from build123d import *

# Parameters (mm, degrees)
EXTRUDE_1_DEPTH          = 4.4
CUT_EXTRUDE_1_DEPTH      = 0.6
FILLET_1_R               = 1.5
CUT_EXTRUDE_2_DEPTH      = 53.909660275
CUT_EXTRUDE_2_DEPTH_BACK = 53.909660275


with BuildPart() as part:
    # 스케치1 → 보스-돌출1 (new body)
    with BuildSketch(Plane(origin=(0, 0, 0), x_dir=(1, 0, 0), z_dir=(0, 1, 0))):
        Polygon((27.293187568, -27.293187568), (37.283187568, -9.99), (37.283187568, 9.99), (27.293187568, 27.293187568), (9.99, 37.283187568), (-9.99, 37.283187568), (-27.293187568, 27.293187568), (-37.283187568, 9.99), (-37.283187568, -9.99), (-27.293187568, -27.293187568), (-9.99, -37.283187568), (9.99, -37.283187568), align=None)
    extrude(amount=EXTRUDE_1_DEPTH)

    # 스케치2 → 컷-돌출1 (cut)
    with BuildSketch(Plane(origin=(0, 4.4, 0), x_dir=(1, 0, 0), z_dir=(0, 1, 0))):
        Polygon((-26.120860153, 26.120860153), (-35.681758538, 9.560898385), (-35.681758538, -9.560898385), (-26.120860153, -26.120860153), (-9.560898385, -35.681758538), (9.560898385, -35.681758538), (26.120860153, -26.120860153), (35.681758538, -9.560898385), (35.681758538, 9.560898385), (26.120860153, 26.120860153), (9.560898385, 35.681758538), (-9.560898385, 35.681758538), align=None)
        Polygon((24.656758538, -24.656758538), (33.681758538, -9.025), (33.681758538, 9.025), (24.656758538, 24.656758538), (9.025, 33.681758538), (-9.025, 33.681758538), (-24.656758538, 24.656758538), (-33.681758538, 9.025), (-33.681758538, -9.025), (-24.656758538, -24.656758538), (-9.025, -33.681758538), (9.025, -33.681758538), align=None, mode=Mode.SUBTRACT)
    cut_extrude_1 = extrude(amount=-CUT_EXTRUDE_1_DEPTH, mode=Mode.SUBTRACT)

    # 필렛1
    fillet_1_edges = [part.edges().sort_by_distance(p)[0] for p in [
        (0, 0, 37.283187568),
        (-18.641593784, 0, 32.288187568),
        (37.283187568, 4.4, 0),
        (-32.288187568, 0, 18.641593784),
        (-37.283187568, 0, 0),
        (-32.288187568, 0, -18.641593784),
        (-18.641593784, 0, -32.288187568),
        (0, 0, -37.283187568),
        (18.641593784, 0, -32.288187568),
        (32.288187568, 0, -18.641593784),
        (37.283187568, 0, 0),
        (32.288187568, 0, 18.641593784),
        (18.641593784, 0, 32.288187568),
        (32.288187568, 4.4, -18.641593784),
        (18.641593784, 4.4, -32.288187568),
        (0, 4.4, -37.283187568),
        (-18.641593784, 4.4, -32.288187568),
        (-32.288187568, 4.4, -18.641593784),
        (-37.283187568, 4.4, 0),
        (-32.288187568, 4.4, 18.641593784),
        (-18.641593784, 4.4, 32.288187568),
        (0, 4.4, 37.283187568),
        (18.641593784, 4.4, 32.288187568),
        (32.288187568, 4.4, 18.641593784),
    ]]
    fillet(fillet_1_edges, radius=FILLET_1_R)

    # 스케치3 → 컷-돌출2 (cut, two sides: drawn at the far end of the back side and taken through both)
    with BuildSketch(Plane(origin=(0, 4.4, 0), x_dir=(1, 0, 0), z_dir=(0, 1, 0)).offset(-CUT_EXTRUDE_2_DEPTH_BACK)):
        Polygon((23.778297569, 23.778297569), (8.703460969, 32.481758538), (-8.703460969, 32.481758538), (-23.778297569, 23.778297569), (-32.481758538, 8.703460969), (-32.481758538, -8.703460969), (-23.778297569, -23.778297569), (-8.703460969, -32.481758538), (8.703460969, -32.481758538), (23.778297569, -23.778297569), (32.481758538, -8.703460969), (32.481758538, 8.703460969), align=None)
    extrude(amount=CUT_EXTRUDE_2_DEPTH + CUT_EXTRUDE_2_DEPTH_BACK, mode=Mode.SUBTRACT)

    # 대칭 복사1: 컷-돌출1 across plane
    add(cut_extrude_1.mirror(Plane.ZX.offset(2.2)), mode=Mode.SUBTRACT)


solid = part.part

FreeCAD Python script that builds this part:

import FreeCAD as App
import Part
import Sketcher
from FreeCAD import Vector
Q = App.Units.Quantity


def edges_at(feature, points):
    """Names of the edges that pass closest to the given points."""
    edges = feature.Shape.Edges
    near = lambda p: min(range(len(edges)), key=lambda i: edges[i].distToShape(Part.Vertex(*p))[0])
    return sorted({f"Edge{near(p) + 1}" for p in points})

doc = App.newDocument("Part")
body = doc.addObject("PartDesign::Body", "Body")

# Sketch on XZ plane
sketch1 = body.newObject("Sketcher::SketchObject", "Sketch")
sketch1.AttachmentSupport = (doc.getObject("XZ_Plane"), [""])
sketch1.MapMode = "FlatFace"
sketch1.addGeometry([
    Part.LineSegment(Vector(27, 27, 0), Vector(37, 10, 0)),  # 0
    Part.LineSegment(Vector(37, 10, 0), Vector(37, -10, 0)),  # 1
    Part.LineSegment(Vector(37, -10, 0), Vector(27, -27, 0)),  # 2
    Part.LineSegment(Vector(27, -27, 0), Vector(10, -37, 0)),  # 3
    Part.LineSegment(Vector(10, -37, 0), Vector(-10, -37, 0)),  # 4
    Part.LineSegment(Vector(-10, -37, 0), Vector(-27, -27, 0)),  # 5
    Part.LineSegment(Vector(-27, -27, 0), Vector(-37, -10, 0)),  # 6
    Part.LineSegment(Vector(-37, -10, 0), Vector(-37, 10, 0)),  # 7
    Part.LineSegment(Vector(-37, 10, 0), Vector(-27, 27, 0)),  # 8
    Part.LineSegment(Vector(-27, 27, 0), Vector(-10, 37, 0)),  # 9
    Part.LineSegment(Vector(-10, 37, 0), Vector(10, 37, 0)),  # 10
    Part.LineSegment(Vector(10, 37, 0), Vector(27, 27, 0)),  # 11
], False)
sketch1.addConstraint([
    Sketcher.Constraint("Coincident", 0, 2, 1, 1),
    Sketcher.Constraint("Coincident", 1, 2, 2, 1),
    Sketcher.Constraint("Coincident", 2, 2, 3, 1),
    Sketcher.Constraint("Coincident", 3, 2, 4, 1),
    Sketcher.Constraint("Coincident", 4, 2, 5, 1),
    Sketcher.Constraint("Coincident", 5, 2, 6, 1),
    Sketcher.Constraint("Coincident", 6, 2, 7, 1),
    Sketcher.Constraint("Coincident", 7, 2, 8, 1),
    Sketcher.Constraint("Coincident", 8, 2, 9, 1),
    Sketcher.Constraint("Coincident", 9, 2, 10, 1),
    Sketcher.Constraint("Coincident", 10, 2, 11, 1),
    Sketcher.Constraint("Coincident", 11, 2, 0, 1),
    Sketcher.Constraint("Vertical", 1),
    Sketcher.Constraint("Horizontal", 4),
    Sketcher.Constraint("Vertical", 7),
    Sketcher.Constraint("Horizontal", 10),
    Sketcher.Constraint("Symmetric", 0, 2, 6, 2, -1, 1),
    Sketcher.Constraint("Symmetric", 2, 2, 8, 2, -1, 1),
    Sketcher.Constraint("Symmetric", 3, 2, 9, 2, -1, 1),
    Sketcher.Constraint("Symmetric", 5, 2, 11, 2, -1, 1),
    Sketcher.Constraint("Symmetric", 2, 2, 5, 2, -2),
    Sketcher.Constraint("Perpendicular", 0, 3),
    Sketcher.Constraint("Perpendicular", 2, 5),
    Sketcher.Constraint("Perpendicular", 5, 8),
    Sketcher.Constraint("Perpendicular", 8, 11),
    Sketcher.Constraint("Horizontal", 1, 2, 6, 2),
    Sketcher.Constraint("Equal", 10, 1),
    Sketcher.Constraint("Equal", 2, 3),
    Sketcher.Constraint("Angle", 0, Q("-60 deg")),
    Sketcher.Constraint("DistanceX", 4, 2, 4, 1, Q("19.98 mm")),
    Sketcher.Constraint("Distance", 0, Q("19.98 mm")),
])
pad1 = body.newObject("PartDesign::Pad", "Pad")
pad1.Profile = sketch1
pad1.Length = 4.4
pad1.Reversed = True

# Sketch on XZ plane
sketch2 = body.newObject("Sketcher::SketchObject", "Sketch001")
sketch2.AttachmentSupport = (doc.getObject("XZ_Plane"), [""])
sketch2.MapMode = "FlatFace"
sketch2.AttachmentOffset = App.Placement(Vector(0, 0, -4.4), App.Rotation())
sketch2.addGeometry([
    Part.LineSegment(Vector(-26, -26, 0), Vector(-36, -10, 0)),  # 0
    Part.LineSegment(Vector(-36, -10, 0), Vector(-36, 10, 0)),  # 1
    Part.LineSegment(Vector(-36, 10, 0), Vector(-26, 26, 0)),  # 2
    Part.LineSegment(Vector(-26, 26, 0), Vector(-10, 36, 0)),  # 3
    Part.LineSegment(Vector(-10, 36, 0), Vector(10, 36, 0)),  # 4
    Part.LineSegment(Vector(10, 36, 0), Vector(26, 26, 0)),  # 5
    Part.LineSegment(Vector(26, 26, 0), Vector(36, 10, 0)),  # 6
    Part.LineSegment(Vector(36, 10, 0), Vector(36, -10, 0)),  # 7
    Part.LineSegment(Vector(36, -10, 0), Vector(26, -26, 0)),  # 8
    Part.LineSegment(Vector(26, -26, 0), Vector(10, -36, 0)),  # 9
    Part.LineSegment(Vector(10, -36, 0), Vector(-10, -36, 0)),  # 10
    Part.LineSegment(Vector(-10, -36, 0), Vector(-26, -26, 0)),  # 11
    Part.LineSegment(Vector(34, 9, 0), Vector(25, 25, 0)),  # 12
    Part.LineSegment(Vector(25, 25, 0), Vector(9, 34, 0)),  # 13
    Part.LineSegment(Vector(9, 34, 0), Vector(-9, 34, 0)),  # 14
    Part.LineSegment(Vector(-9, 34, 0), Vector(-25, 25, 0)),  # 15
    Part.LineSegment(Vector(-25, 25, 0), Vector(-34, 9, 0)),  # 16
    Part.LineSegment(Vector(-34, 9, 0), Vector(-34, -9, 0)),  # 17
    Part.LineSegment(Vector(-34, -9, 0), Vector(-25, -25, 0)),  # 18
    Part.LineSegment(Vector(-25, -25, 0), Vector(-9, -34, 0)),  # 19
    Part.LineSegment(Vector(-9, -34, 0), Vector(9, -34, 0)),  # 20
    Part.LineSegment(Vector(9, -34, 0), Vector(25, -25, 0)),  # 21
    Part.LineSegment(Vector(25, -25, 0), Vector(34, -9, 0)),  # 22
    Part.LineSegment(Vector(34, -9, 0), Vector(34, 9, 0)),  # 23
], False)
sketch2.addConstraint([
    Sketcher.Constraint("Coincident", 0, 2, 1, 1),
    Sketcher.Constraint("Coincident", 1, 2, 2, 1),
    Sketcher.Constraint("Coincident", 2, 2, 3, 1),
    Sketcher.Constraint("Coincident", 3, 2, 4, 1),
    Sketcher.Constraint("Coincident", 4, 2, 5, 1),
    Sketcher.Constraint("Coincident", 5, 2, 6, 1),
    Sketcher.Constraint("Coincident", 6, 2, 7, 1),
    Sketcher.Constraint("Coincident", 7, 2, 8, 1),
    Sketcher.Constraint("Coincident", 8, 2, 9, 1),
    Sketcher.Constraint("Coincident", 9, 2, 10, 1),
    Sketcher.Constraint("Coincident", 10, 2, 11, 1),
    Sketcher.Constraint("Coincident", 11, 2, 0, 1),
    Sketcher.Constraint("Coincident", 12, 2, 13, 1),
    Sketcher.Constraint("Coincident", 13, 2, 14, 1),
    Sketcher.Constraint("Coincident", 14, 2, 15, 1),
    Sketcher.Constraint("Coincident", 15, 2, 16, 1),
    Sketcher.Constraint("Coincident", 16, 2, 17, 1),
    Sketcher.Constraint("Coincident", 17, 2, 18, 1),
    Sketcher.Constraint("Coincident", 18, 2, 19, 1),
    Sketcher.Constraint("Coincident", 19, 2, 20, 1),
    Sketcher.Constraint("Coincident", 20, 2, 21, 1),
    Sketcher.Constraint("Coincident", 21, 2, 22, 1),
    Sketcher.Constraint("Coincident", 22, 2, 23, 1),
    Sketcher.Constraint("Coincident", 23, 2, 12, 1),
    Sketcher.Constraint("Vertical", 1),
    Sketcher.Constraint("Horizontal", 4),
    Sketcher.Constraint("Vertical", 7),
    Sketcher.Constraint("Horizontal", 10),
    Sketcher.Constraint("Horizontal", 14),
    Sketcher.Constraint("Vertical", 17),
    Sketcher.Constraint("Horizontal", 20),
    Sketcher.Constraint("Vertical", 23),
    Sketcher.Constraint("Symmetric", 0, 2, 6, 2, -1, 1),
    Sketcher.Constraint("Symmetric", 2, 2, 8, 2, -1, 1),
    Sketcher.Constraint("Symmetric", 3, 2, 9, 2, -1, 1),
    Sketcher.Constraint("Symmetric", 5, 2, 11, 2, -1, 1),
    Sketcher.Constraint("Symmetric", 12, 2, 18, 2, -1, 1),
    Sketcher.Constraint("Symmetric", 13, 2, 19, 2, -1, 1),
    Sketcher.Constraint("Symmetric", 15, 2, 21, 2, -1, 1),
    Sketcher.Constraint("Symmetric", 16, 2, 22, 2, -1, 1),
    Sketcher.Constraint("Symmetric", 2, 2, 5, 2, -2),
    Sketcher.Constraint("Symmetric", 12, 2, 15, 2, -2),
    Sketcher.Constraint("Perpendicular", 0, 3),
    Sketcher.Constraint("Perpendicular", 2, 5),
    Sketcher.Constraint("Perpendicular", 5, 8),
    Sketcher.Constraint("Perpendicular", 8, 11),
    Sketcher.Constraint("Perpendicular", 9, 12),
    Sketcher.Constraint("Parallel", 11, 13),
    Sketcher.Constraint("Perpendicular", 12, 15),
    Sketcher.Constraint("Perpendicular", 13, 16),
    Sketcher.Constraint("Perpendicular", 15, 18),
    Sketcher.Constraint("Perpendicular", 18, 21),
    Sketcher.Constraint("Horizontal", 1, 2, 6, 2),
    Sketcher.Constraint("Equal", 10, 1),
    Sketcher.Constraint("Equal", 20, 17),
    Sketcher.Constraint("Equal", 2, 3),
    Sketcher.Constraint("Equal", 12, 13),
    Sketcher.Constraint("Angle", 0, Q("120 deg")),
    Sketcher.Constraint("DistanceY", 13, 2, 4, 2, Q("2 mm")),
    Sketcher.Constraint("DistanceX", 14, 2, 14, 1, Q("18.05 mm")),
    Sketcher.Constraint("Distance", 12, Q("18.05 mm")),
    Sketcher.Constraint("DistanceY", 0, 2, -1, 1, Q("9.560898 mm")),
])
pocket1 = body.newObject("PartDesign::Pocket", "Pocket")
pocket1.Profile = sketch2
pocket1.Length = 0.6
pocket1.Reversed = True
doc.recompute()

fillet = body.newObject("PartDesign::Fillet", "Fillet")
fillet.Base = (pocket1, edges_at(pocket1, [
    (0, 0, 37.283),
    (-18.642, 0, 32.288),
    (37.283, 4.4, 0),
    (-32.288, 0, 18.642),
    (-37.283, 0, 0),
    (-32.288, 0, -18.642),
    (-18.642, 0, -32.288),
    (0, 0, -37.283),
    (18.642, 0, -32.288),
    (32.288, 0, -18.642),
    (37.283, 0, 0),
    (32.288, 0, 18.642),
    (18.642, 0, 32.288),
    (32.288, 4.4, -18.642),
    (18.642, 4.4, -32.288),
    (0, 4.4, -37.283),
    (-18.642, 4.4, -32.288),
    (-32.288, 4.4, -18.642),
    (-37.283, 4.4, 0),
    (-32.288, 4.4, 18.642),
    (-18.642, 4.4, 32.288),
    (0, 4.4, 37.283),
    (18.642, 4.4, 32.288),
    (32.288, 4.4, 18.642),
]))
fillet.Radius = 1.5

# Sketch on XZ plane
sketch3 = body.newObject("Sketcher::SketchObject", "Sketch002")
sketch3.AttachmentSupport = (doc.getObject("XZ_Plane"), [""])
sketch3.MapMode = "FlatFace"
sketch3.AttachmentOffset = App.Placement(Vector(0, 0, -4.4), App.Rotation())
sketch3.addGeometry([
    Part.LineSegment(Vector(24, -24, 0), Vector(9, -32, 0)),  # 0
    Part.LineSegment(Vector(9, -32, 0), Vector(-9, -32, 0)),  # 1
    Part.LineSegment(Vector(-9, -32, 0), Vector(-24, -24, 0)),  # 2
    Part.LineSegment(Vector(-24, -24, 0), Vector(-32, -9, 0)),  # 3
    Part.LineSegment(Vector(-32, -9, 0), Vector(-32, 9, 0)),  # 4
    Part.LineSegment(Vector(-32, 9, 0), Vector(-24, 24, 0)),  # 5
    Part.LineSegment(Vector(-24, 24, 0), Vector(-9, 32, 0)),  # 6
    Part.LineSegment(Vector(-9, 32, 0), Vector(9, 32, 0)),  # 7
    Part.LineSegment(Vector(9, 32, 0), Vector(24, 24, 0)),  # 8
    Part.LineSegment(Vector(24, 24, 0), Vector(32, 9, 0)),  # 9
    Part.LineSegment(Vector(32, 9, 0), Vector(32, -9, 0)),  # 10
    Part.LineSegment(Vector(32, -9, 0), Vector(24, -24, 0)),  # 11
], False)
sketch3.addConstraint([
    Sketcher.Constraint("Coincident", 0, 2, 1, 1),
    Sketcher.Constraint("Coincident", 1, 2, 2, 1),
    Sketcher.Constraint("Coincident", 2, 2, 3, 1),
    Sketcher.Constraint("Coincident", 3, 2, 4, 1),
    Sketcher.Constraint("Coincident", 4, 2, 5, 1),
    Sketcher.Constraint("Coincident", 5, 2, 6, 1),
    Sketcher.Constraint("Coincident", 6, 2, 7, 1),
    Sketcher.Constraint("Coincident", 7, 2, 8, 1),
    Sketcher.Constraint("Coincident", 8, 2, 9, 1),
    Sketcher.Constraint("Coincident", 9, 2, 10, 1),
    Sketcher.Constraint("Coincident", 10, 2, 11, 1),
    Sketcher.Constraint("Coincident", 11, 2, 0, 1),
    Sketcher.Constraint("Horizontal", 1),
    Sketcher.Constraint("Vertical", 4),
    Sketcher.Constraint("Horizontal", 7),
    Sketcher.Constraint("Vertical", 10),
    Sketcher.Constraint("Symmetric", 0, 2, 6, 2, -1, 1),
    Sketcher.Constraint("Symmetric", 2, 2, 8, 2, -1, 1),
    Sketcher.Constraint("Symmetric", 3, 2, 9, 2, -1, 1),
    Sketcher.Constraint("Symmetric", 5, 2, 11, 2, -1, 1),
    Sketcher.Constraint("Symmetric", 5, 2, 8, 2, -2),
    Sketcher.Constraint("Perpendicular", 0, 3),
    Sketcher.Constraint("Perpendicular", 2, 5),
    Sketcher.Constraint("Perpendicular", 5, 8),
    Sketcher.Constraint("Perpendicular", 8, 11),
    Sketcher.Constraint("Horizontal", 4, 2, 9, 2),
    Sketcher.Constraint("Equal", 7, 4),
    Sketcher.Constraint("Equal", 2, 3),
    Sketcher.Constraint("Angle", 0, Q("-150 deg")),
    Sketcher.Constraint("DistanceX", 1, 2, 1, 1, Q("17.406922 mm")),
    Sketcher.Constraint("Distance", 0, Q("17.406922 mm")),
])
pocket2 = body.newObject("PartDesign::Pocket", "Pocket001")
pocket2.Profile = sketch3
pocket2.Type = "ThroughAll"
pocket2.Midplane = True
doc.recompute()

datumplane = body.newObject("PartDesign::Plane", "DatumPlane")
datumplane.AttachmentSupport = (doc.getObject("XZ_Plane"), [""])
datumplane.MapMode = "FlatFace"
datumplane.AttachmentOffset = App.Placement(Vector(0, 0, -2.2), App.Rotation())
mirrored = body.newObject("PartDesign::Mirrored", "Mirrored")
mirrored.Originals = [pocket1]
mirrored.MirrorPlane = (datumplane, [""])
body.Tip = mirrored

doc.recompute()
